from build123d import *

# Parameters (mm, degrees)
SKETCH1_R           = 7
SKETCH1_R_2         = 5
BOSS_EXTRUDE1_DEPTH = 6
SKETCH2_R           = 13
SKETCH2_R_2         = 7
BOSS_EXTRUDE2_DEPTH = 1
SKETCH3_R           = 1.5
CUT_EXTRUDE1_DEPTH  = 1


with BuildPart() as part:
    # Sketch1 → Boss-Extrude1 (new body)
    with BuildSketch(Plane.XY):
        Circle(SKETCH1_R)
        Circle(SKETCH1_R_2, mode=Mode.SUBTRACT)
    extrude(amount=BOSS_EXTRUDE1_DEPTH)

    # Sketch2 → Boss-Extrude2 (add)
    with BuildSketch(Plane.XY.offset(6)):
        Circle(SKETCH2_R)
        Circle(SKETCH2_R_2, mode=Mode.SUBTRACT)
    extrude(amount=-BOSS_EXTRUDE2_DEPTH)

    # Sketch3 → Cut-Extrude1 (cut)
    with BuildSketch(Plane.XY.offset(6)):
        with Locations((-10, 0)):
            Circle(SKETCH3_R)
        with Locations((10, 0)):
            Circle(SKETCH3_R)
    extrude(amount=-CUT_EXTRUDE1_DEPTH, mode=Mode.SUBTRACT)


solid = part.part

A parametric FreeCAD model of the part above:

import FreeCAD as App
import Part
import Sketcher
from FreeCAD import Vector

doc = App.newDocument("Part")
body = doc.addObject("PartDesign::Body", "Body")

# Sketch on XY plane
sketch1 = body.newObject("Sketcher::SketchObject", "Sketch")
sketch1.AttachmentSupport = (doc.getObject("XY_Plane"), [""])
sketch1.MapMode = "FlatFace"
sketch1.addGeometry(Part.Circle(Vector(0, 0, 0), Vector(0, 0, 1), 7), False)
sketch1.addGeometry(Part.Circle(Vector(0, 0, 0), Vector(0, 0, 1), 5), False)
sketch1.addConstraint(Sketcher.Constraint("Coincident", 0, 3, -1, 1))
sketch1.addConstraint(Sketcher.Constraint("Coincident", 1, 3, -1, 1))
sketch1.addConstraint(Sketcher.Constraint("Diameter", 0, 14.0))
sketch1.addConstraint(Sketcher.Constraint("Diameter", 1, 10.0))
pad1 = body.newObject("PartDesign::Pad", "Pad")
pad1.Profile = sketch1
pad1.Length = 6

# Sketch on XY plane
sketch2 = body.newObject("Sketcher::SketchObject", "Sketch001")
sketch2.AttachmentSupport = (doc.getObject("XY_Plane"), [""])
sketch2.MapMode = "FlatFace"
sketch2.AttachmentOffset = App.Placement(Vector(0, 0, 6), App.Rotation())
sketch2.addGeometry(Part.Circle(Vector(0, 0, 0), Vector(0, 0, 1), 13), False)
sketch2.addGeometry(Part.Circle(Vector(0, 0, 0), Vector(0, 0, 1), 7), False)
sketch2.addConstraint(Sketcher.Constraint("Coincident", 0, 3, -1, 1))
sketch2.addConstraint(Sketcher.Constraint("Coincident", 1, 3, -1, 1))
sketch2.addConstraint(Sketcher.Constraint("Diameter", 0, 26.0))
sketch2.addConstraint(Sketcher.Constraint("Diameter", 1, 14.0))
pad2 = body.newObject("PartDesign::Pad", "Pad001")
pad2.Profile = sketch2
pad2.Length = 1
pad2.Reversed = True

# Sketch on XY plane
sketch3 = body.newObject("Sketcher::SketchObject", "Sketch002")
sketch3.AttachmentSupport = (doc.getObject("XY_Plane"), [""])
sketch3.MapMode = "FlatFace"
sketch3.AttachmentOffset = App.Placement(Vector(0, 0, 6), App.Rotation())
sketch3.addGeometry(Part.Circle(Vector(-10, 0, 0), Vector(0, 0, 1), 1.5), False)
sketch3.addGeometry(Part.Circle(Vector(10, 0, 0), Vector(0, 0, 1), 1.5), False)
sketch3.addConstraint(Sketcher.Constraint("Equal", 0, 1))
sketch3.addConstraint(Sketcher.Constraint("Symmetric", 0, 3, 1, 3, -1, 1))
sketch3.addConstraint(Sketcher.Constraint("PointOnObject", 0, 3, -1))
sketch3.addConstraint(Sketcher.Constraint("Diameter", 0, 3.0))
sketch3.addConstraint(Sketcher.Constraint("DistanceX", 0, 3, -1, 1, 10.0))
pocket1 = body.newObject("PartDesign::Pocket", "Pocket")
pocket1.Profile = sketch3
pocket1.Length = 1

doc.recompute()
